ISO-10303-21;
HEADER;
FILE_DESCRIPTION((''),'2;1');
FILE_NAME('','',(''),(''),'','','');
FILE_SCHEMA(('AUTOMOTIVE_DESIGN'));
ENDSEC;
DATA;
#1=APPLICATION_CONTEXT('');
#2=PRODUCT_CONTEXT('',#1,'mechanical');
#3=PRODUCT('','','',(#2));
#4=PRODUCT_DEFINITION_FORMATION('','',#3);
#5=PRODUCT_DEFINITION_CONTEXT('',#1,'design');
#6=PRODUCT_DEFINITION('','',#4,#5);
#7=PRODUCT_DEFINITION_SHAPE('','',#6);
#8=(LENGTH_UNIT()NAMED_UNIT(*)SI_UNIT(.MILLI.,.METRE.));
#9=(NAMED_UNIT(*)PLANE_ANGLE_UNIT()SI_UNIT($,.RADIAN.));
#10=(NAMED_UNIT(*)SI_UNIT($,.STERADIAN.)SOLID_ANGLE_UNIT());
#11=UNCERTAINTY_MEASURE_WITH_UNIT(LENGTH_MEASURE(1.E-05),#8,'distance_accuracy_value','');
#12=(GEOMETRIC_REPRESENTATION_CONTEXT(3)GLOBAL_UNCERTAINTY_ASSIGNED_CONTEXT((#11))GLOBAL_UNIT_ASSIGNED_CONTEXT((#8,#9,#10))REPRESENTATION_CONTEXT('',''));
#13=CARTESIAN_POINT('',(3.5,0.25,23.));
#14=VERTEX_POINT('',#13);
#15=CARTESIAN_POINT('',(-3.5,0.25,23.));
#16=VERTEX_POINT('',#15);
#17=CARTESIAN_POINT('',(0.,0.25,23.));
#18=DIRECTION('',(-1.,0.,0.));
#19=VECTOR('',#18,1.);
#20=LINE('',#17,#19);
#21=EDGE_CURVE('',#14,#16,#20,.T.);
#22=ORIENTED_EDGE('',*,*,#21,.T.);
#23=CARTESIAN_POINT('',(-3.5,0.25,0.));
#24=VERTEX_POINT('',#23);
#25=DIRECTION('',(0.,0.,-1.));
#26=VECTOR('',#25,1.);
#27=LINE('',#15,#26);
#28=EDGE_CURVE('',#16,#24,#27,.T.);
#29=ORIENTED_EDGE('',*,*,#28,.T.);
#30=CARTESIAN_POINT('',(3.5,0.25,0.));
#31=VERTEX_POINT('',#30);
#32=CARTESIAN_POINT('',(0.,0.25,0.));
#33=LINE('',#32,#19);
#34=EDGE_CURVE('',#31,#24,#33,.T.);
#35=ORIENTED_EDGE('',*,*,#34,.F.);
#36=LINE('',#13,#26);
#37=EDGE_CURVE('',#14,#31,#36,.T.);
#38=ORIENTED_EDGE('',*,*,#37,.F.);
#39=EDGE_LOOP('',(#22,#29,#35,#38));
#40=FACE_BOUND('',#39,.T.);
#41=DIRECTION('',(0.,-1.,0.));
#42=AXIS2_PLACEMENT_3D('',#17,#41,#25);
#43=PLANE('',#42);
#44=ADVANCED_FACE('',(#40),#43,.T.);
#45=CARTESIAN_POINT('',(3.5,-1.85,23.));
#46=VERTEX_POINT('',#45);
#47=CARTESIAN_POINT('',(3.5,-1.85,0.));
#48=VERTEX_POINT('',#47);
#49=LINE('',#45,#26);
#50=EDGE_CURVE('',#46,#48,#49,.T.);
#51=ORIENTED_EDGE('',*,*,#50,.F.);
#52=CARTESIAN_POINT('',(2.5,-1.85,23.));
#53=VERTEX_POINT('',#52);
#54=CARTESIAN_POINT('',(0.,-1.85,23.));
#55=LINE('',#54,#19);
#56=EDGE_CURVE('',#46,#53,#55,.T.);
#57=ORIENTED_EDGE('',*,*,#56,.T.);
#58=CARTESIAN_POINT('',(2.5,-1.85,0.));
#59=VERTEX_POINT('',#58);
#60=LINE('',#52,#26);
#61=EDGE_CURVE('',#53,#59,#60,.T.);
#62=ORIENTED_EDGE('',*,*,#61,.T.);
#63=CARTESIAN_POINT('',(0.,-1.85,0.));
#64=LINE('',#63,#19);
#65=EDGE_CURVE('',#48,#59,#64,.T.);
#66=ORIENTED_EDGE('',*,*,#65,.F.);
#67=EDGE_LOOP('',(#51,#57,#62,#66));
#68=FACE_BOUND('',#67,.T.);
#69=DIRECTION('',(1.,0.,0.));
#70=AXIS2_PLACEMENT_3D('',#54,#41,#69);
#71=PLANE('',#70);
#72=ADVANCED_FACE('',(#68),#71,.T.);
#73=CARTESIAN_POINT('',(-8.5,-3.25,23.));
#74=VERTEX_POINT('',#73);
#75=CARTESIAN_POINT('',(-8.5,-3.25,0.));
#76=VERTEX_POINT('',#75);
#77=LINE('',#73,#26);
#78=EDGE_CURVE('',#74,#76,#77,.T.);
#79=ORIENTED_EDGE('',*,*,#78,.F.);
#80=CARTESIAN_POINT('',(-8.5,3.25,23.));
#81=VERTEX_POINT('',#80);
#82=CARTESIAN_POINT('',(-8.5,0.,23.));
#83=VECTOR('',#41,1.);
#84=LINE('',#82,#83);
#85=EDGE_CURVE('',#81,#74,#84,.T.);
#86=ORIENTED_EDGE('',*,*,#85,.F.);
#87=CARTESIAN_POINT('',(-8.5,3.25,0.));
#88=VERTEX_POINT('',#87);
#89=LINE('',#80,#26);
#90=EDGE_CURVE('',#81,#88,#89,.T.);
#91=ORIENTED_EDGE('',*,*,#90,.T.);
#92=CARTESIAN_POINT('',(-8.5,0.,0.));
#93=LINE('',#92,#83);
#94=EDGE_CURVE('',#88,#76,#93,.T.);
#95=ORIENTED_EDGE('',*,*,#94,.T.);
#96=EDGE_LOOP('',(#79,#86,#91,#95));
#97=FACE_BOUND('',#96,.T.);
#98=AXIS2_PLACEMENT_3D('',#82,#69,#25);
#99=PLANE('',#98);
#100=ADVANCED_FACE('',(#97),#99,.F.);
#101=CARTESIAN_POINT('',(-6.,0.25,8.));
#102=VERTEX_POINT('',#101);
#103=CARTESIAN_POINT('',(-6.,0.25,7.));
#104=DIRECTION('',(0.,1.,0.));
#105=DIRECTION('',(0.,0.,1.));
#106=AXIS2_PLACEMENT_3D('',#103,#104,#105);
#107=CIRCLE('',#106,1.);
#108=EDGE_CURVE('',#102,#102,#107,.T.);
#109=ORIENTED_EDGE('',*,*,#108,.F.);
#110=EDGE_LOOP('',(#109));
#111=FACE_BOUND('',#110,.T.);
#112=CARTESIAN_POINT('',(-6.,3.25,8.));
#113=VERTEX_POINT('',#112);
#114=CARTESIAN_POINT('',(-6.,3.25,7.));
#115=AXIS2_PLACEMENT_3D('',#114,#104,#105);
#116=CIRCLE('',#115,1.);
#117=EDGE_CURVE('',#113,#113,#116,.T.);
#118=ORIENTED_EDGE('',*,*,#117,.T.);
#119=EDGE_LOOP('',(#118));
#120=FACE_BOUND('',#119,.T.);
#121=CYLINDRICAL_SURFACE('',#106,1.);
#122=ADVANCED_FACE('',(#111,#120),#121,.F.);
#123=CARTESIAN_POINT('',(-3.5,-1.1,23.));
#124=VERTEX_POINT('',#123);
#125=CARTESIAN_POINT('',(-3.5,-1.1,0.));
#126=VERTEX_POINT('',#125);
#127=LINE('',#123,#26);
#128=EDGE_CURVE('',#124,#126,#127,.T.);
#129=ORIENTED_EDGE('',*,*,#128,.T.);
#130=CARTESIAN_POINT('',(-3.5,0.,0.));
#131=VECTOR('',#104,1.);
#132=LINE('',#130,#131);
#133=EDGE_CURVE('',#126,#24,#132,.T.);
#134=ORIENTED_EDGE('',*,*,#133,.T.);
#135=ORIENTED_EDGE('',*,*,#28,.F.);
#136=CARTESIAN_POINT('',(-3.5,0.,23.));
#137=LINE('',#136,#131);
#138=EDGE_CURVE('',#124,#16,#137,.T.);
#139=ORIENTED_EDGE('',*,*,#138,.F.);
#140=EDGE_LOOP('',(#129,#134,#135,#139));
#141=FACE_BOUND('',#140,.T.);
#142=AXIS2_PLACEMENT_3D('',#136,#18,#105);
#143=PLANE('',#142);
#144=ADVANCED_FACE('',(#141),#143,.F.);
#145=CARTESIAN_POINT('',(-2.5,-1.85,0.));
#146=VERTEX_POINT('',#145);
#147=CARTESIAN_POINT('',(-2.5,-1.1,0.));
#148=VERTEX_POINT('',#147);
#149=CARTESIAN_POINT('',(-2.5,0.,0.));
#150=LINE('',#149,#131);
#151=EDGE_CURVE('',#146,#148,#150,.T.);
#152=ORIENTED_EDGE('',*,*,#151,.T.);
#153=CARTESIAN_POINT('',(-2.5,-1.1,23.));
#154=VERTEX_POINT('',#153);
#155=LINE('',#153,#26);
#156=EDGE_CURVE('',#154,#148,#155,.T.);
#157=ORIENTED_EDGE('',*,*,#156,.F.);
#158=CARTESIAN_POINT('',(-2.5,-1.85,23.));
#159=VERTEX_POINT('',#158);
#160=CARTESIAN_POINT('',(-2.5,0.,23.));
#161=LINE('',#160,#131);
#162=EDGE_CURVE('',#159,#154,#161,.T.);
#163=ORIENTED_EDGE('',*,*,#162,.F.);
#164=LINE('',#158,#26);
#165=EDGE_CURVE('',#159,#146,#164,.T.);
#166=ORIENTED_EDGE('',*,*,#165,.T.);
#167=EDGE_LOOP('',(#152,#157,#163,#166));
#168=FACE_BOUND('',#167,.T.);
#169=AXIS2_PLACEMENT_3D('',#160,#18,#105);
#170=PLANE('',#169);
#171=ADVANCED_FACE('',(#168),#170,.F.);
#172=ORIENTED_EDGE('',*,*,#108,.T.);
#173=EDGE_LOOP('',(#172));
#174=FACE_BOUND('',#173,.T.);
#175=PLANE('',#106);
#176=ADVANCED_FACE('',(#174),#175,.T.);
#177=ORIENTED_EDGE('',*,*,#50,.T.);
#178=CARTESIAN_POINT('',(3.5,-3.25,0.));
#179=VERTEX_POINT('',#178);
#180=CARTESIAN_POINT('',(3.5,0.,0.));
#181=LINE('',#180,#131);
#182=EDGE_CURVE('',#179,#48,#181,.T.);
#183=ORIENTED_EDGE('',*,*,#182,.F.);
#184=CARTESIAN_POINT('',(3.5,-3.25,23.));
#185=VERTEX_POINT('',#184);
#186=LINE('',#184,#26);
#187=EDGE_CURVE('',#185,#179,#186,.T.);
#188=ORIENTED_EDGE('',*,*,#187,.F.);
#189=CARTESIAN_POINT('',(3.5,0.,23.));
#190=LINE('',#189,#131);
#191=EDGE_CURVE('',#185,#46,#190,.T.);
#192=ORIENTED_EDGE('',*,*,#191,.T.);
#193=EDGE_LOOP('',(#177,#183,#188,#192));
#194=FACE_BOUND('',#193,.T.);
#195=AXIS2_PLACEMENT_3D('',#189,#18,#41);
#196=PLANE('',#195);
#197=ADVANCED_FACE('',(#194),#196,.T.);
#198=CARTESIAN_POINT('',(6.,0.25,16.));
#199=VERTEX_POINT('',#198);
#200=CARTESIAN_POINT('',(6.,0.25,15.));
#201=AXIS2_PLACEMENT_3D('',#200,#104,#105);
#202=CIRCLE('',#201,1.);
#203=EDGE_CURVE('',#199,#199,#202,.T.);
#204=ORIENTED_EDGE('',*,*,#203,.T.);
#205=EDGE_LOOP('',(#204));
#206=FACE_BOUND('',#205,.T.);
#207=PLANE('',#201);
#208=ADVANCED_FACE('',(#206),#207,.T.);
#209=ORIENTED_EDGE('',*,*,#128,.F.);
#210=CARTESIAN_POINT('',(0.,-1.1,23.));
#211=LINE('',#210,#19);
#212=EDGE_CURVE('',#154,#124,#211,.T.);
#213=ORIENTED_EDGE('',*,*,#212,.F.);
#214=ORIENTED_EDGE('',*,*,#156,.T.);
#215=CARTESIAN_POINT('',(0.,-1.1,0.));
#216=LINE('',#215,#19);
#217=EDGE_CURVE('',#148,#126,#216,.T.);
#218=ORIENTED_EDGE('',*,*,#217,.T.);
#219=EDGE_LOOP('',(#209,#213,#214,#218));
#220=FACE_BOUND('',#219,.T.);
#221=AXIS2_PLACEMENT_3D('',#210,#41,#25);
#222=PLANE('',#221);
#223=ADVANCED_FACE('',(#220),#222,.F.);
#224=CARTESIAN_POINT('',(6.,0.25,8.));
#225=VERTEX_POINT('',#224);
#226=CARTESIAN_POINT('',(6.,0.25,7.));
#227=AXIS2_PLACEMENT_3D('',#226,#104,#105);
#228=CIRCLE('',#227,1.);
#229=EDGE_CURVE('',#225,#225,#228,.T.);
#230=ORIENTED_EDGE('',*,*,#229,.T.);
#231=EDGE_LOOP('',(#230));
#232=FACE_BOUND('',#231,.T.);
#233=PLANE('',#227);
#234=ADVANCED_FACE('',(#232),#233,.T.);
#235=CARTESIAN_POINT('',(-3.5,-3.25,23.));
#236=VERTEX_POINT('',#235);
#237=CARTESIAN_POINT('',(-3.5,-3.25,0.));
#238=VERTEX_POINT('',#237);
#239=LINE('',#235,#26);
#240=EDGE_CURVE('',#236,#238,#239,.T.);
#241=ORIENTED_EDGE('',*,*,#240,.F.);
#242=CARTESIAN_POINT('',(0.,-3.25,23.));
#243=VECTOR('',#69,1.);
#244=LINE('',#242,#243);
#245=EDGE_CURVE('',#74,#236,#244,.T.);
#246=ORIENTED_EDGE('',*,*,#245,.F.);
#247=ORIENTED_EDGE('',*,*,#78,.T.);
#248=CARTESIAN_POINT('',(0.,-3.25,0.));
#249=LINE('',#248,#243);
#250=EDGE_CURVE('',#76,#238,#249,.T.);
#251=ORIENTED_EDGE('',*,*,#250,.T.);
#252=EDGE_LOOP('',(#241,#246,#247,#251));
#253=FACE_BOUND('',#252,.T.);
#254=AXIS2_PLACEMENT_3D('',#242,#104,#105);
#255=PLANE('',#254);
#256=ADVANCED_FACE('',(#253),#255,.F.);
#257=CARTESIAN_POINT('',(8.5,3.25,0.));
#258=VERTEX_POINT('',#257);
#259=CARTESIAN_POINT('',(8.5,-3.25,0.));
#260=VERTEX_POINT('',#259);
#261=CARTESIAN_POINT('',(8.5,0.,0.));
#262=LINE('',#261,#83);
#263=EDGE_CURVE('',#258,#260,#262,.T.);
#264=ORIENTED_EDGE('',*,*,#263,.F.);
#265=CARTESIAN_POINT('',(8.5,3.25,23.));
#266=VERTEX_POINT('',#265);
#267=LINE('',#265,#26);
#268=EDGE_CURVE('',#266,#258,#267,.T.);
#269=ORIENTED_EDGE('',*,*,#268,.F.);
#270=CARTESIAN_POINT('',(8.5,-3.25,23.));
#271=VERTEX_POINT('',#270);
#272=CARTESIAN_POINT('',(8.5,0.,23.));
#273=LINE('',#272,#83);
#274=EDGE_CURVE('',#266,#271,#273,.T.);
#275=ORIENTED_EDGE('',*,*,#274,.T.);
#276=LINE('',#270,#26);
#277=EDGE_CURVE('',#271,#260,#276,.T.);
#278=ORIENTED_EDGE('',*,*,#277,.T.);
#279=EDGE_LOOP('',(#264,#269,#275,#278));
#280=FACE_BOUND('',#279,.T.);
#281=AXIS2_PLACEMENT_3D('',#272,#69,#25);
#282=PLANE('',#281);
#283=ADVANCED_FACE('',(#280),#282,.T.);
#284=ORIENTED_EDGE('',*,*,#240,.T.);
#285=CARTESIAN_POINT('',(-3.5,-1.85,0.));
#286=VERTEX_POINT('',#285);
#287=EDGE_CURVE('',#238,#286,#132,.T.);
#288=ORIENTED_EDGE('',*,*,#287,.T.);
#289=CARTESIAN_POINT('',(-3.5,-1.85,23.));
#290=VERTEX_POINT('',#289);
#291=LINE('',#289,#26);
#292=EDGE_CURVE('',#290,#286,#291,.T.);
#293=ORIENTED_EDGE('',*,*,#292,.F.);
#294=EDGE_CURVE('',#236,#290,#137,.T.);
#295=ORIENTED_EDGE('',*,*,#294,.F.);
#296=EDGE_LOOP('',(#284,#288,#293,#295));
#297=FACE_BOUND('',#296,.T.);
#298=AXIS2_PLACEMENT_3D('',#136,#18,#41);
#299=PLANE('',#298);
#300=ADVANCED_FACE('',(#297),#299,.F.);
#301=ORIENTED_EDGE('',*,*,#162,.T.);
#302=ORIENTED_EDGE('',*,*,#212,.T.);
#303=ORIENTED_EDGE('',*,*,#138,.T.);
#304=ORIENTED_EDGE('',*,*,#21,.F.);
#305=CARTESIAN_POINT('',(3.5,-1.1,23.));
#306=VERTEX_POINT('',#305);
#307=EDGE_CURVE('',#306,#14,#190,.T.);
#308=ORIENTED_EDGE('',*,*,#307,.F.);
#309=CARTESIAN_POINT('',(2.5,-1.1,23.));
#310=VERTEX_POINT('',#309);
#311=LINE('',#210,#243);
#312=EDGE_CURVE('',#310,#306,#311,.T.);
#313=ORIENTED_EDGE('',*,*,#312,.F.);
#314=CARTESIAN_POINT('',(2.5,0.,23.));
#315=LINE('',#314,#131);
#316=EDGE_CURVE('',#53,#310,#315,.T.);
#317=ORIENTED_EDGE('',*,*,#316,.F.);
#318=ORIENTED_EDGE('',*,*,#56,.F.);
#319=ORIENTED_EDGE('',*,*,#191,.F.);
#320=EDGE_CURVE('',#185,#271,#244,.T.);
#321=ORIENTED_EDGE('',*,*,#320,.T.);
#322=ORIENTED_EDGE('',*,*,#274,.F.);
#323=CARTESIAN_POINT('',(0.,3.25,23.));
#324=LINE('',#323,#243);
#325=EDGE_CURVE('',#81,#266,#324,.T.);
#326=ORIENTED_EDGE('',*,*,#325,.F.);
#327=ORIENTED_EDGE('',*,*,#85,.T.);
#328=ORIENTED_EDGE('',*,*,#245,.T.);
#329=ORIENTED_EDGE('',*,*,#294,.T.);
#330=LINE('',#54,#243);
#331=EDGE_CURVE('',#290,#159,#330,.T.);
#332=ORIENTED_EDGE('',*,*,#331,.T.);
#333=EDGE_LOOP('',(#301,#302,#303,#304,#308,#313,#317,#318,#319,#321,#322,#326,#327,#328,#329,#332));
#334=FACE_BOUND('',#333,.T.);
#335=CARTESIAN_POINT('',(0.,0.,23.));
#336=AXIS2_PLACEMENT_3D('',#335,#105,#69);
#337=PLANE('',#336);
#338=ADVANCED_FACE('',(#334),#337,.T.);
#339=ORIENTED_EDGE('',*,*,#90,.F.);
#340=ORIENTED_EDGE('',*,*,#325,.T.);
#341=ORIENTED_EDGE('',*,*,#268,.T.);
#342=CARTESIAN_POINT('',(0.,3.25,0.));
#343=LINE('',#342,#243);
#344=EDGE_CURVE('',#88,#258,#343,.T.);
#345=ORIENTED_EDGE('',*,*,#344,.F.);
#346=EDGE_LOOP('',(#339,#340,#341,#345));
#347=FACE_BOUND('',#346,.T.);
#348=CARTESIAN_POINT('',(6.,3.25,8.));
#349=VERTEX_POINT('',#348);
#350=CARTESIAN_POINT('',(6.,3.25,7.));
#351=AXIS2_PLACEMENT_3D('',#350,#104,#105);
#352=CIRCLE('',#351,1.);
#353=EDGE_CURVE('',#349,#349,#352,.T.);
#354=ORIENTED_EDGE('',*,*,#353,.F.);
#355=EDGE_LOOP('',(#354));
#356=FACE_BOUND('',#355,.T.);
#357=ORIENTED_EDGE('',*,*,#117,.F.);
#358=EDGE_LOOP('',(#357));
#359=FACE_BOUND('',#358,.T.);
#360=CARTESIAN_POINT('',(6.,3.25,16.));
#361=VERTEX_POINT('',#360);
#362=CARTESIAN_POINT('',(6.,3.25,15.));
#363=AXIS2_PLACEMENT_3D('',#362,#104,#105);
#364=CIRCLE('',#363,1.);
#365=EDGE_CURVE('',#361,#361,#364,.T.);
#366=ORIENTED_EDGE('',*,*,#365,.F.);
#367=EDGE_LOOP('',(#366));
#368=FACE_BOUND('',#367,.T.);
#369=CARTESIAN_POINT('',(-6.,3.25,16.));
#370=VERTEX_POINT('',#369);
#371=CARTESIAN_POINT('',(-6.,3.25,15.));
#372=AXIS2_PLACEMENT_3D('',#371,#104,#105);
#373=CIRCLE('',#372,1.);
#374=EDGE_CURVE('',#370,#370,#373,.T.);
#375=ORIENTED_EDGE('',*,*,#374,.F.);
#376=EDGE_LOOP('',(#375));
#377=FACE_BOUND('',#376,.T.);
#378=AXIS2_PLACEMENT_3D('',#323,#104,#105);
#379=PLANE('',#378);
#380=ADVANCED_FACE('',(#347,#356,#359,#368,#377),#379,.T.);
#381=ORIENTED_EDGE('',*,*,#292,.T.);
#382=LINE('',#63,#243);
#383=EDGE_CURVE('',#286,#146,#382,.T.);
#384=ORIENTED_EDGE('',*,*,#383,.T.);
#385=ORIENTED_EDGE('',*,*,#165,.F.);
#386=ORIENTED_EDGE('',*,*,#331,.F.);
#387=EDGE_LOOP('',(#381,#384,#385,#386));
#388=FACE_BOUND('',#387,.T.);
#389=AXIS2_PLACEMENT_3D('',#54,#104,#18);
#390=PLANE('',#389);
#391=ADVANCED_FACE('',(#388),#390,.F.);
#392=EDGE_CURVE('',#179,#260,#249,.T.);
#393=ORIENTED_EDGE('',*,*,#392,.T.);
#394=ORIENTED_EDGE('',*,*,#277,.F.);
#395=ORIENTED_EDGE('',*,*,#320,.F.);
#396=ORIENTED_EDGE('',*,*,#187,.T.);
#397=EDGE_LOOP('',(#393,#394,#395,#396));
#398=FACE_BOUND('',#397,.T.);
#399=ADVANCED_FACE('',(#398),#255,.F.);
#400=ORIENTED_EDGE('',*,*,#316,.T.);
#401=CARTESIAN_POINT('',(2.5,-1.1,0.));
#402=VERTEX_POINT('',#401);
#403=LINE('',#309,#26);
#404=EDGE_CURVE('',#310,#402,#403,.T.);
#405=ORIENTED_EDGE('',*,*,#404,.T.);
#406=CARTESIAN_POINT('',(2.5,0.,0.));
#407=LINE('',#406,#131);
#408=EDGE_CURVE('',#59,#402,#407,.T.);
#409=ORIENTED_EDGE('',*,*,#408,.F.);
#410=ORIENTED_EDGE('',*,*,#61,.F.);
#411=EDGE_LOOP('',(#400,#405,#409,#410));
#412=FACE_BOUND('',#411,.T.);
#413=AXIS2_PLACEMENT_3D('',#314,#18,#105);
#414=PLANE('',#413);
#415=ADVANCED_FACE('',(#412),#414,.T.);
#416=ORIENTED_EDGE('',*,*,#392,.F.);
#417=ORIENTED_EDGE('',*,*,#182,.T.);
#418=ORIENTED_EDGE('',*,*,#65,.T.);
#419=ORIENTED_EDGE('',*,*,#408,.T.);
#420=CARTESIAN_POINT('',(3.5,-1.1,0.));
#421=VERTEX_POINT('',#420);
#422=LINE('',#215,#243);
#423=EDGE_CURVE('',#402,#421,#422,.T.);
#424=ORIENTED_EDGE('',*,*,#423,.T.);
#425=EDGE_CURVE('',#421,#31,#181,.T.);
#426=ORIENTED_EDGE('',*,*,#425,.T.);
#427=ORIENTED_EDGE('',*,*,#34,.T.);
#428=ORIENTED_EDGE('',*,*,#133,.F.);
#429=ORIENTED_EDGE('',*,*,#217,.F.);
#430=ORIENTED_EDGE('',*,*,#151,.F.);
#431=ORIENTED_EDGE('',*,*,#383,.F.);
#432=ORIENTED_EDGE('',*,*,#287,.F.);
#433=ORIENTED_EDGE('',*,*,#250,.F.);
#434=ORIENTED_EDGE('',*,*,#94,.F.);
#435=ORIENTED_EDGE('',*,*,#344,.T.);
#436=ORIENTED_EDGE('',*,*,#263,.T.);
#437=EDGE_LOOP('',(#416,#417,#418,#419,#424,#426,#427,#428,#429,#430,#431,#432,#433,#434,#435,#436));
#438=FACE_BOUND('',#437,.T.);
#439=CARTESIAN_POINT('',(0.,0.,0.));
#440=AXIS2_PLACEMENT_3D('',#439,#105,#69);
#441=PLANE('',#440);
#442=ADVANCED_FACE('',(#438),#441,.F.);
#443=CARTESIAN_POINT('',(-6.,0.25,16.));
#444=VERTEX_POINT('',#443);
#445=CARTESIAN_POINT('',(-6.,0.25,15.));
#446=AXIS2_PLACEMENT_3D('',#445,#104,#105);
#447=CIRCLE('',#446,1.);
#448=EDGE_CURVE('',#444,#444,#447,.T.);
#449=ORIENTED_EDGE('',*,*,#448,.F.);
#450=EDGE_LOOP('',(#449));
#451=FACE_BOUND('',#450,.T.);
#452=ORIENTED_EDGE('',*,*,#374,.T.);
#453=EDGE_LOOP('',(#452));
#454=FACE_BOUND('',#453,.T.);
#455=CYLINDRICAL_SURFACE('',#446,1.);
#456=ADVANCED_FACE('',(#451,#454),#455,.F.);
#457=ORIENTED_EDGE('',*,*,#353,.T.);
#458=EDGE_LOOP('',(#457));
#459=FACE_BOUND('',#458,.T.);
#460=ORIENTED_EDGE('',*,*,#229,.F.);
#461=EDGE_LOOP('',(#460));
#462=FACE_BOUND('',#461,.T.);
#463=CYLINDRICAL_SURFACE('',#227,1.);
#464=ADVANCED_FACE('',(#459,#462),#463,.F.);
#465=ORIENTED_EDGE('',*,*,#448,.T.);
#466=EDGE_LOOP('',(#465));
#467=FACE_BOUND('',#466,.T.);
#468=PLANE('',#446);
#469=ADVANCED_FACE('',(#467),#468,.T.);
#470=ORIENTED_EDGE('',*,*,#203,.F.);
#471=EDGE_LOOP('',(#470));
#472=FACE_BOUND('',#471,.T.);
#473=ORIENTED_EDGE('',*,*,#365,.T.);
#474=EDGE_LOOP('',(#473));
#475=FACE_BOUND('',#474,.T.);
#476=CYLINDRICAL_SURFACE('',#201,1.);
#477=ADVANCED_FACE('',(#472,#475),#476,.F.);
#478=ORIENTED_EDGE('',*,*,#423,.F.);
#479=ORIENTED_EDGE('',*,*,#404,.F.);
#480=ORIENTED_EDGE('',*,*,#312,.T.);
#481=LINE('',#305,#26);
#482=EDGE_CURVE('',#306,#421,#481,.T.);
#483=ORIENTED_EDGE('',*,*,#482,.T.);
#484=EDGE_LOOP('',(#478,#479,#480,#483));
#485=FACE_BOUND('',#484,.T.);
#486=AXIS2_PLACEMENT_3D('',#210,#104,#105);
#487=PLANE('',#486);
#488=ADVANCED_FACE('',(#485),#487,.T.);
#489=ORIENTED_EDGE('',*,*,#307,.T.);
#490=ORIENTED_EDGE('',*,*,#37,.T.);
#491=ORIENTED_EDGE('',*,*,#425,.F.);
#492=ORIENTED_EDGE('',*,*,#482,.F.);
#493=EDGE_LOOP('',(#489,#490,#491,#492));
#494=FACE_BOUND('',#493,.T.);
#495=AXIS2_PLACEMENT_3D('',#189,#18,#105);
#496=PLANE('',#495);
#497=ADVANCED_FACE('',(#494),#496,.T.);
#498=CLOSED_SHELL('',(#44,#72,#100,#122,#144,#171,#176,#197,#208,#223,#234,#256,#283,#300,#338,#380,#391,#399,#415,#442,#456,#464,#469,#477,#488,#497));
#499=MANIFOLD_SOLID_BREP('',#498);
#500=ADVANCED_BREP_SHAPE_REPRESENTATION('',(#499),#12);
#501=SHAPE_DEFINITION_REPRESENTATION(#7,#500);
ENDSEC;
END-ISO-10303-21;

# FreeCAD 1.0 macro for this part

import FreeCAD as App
import Part
import Sketcher
from FreeCAD import Vector
Q = App.Units.Quantity


def add_polygon(sketch, points):
    """Adds a closed chain of lines whose ends are joined by coincident constraints."""
    first, n = sketch.GeometryCount, len(points)
    for a, b in zip(points, points[1:] + points[:1]):
        sketch.addGeometry(Part.LineSegment(App.Vector(*a, 0), App.Vector(*b, 0)), False)
    for i in range(n):
        sketch.addConstraint(Sketcher.Constraint("Coincident", first + i, 2, first + (i + 1) % n, 1))

doc = App.newDocument("Part")
body = doc.addObject("PartDesign::Body", "Body")

# Sketch on XY plane
sketch1 = doc.addObject("Sketcher::SketchObject", "Sketch")
body.addObject(sketch1)
sketch1.AttachmentSupport = (doc.XY_Plane, [""])
sketch1.MapMode = "FlatFace"
add_polygon(sketch1, [(3.5, -1.9), (3.5, -3.2), (8.5, -3.2), (8.5, 3.2), (-8.5, 3.2), (-8.5, -3.2), (-3.5, -3.2), (-3.5, -1.9), (-2.5, -1.9), (-2.5, -1.1), (-3.5, -1.1), (-3.5, 0.2), (3.5, 0.2), (3.5, -1.1), (2.5, -1.1), (2.5, -1.9)])  # lines 0-15
sketch1.addConstraint([
    Sketcher.Constraint("Vertical", 0),
    Sketcher.Constraint("Horizontal", 1),
    Sketcher.Constraint("Vertical", 2),
    Sketcher.Constraint("Horizontal", 3),
    Sketcher.Constraint("Vertical", 4),
    Sketcher.Constraint("Horizontal", 5),
    Sketcher.Constraint("Vertical", 6),
    Sketcher.Constraint("Horizontal", 7),
    Sketcher.Constraint("Vertical", 8),
    Sketcher.Constraint("Horizontal", 9),
    Sketcher.Constraint("Vertical", 10),
    Sketcher.Constraint("Horizontal", 11),
    Sketcher.Constraint("Vertical", 12),
    Sketcher.Constraint("Horizontal", 13),
    Sketcher.Constraint("Vertical", 14),
    Sketcher.Constraint("Horizontal", 15),
    Sketcher.Constraint("Symmetric", 1, 2, 3, 2, -1, 1),
    Sketcher.Constraint("Symmetric", 0, 2, 5, 2, -2),
    Sketcher.Constraint("Symmetric", 9, 2, 12, 2, -2),
    Sketcher.Constraint("Symmetric", 7, 2, 14, 2, -2),
    Sketcher.Constraint("Vertical", 6, 2, 9, 2),
    Sketcher.Constraint("DistanceX", 1, 1, 1, 2, Q("5 mm")),
    Sketcher.Constraint("DistanceX", 3, 2, 3, 1, Q("17 mm")),
    Sketcher.Constraint("DistanceX", 7, 1, 7, 2, Q("1 mm")),
    Sketcher.Constraint("DistanceY", 0, 2, 0, 1, Q("1.4 mm")),
    Sketcher.Constraint("DistanceY", 2, 1, 2, 2, Q("6.5 mm")),
    Sketcher.Constraint("DistanceY", 11, 2, 2, 2, Q("3 mm")),
    Sketcher.Constraint("DistanceY", 8, 1, 8, 2, Q("0.75 mm")),
])
pad1 = doc.addObject("PartDesign::Pad", "Pad")
body.addObject(pad1)
pad1.Profile = sketch1
pad1.Length = 23

# Sketch on XZ plane
sketch2 = doc.addObject("Sketcher::SketchObject", "Sketch001")
body.addObject(sketch2)
sketch2.AttachmentSupport = (doc.XZ_Plane, [""])
sketch2.MapMode = "FlatFace"
sketch2.AttachmentOffset = App.Placement(Vector(0, 0, -3.25), App.Rotation())
sketch2.addGeometry([
    Part.Circle(Vector(-6, 7, 0), Vector(0, 0, 1), 1),
    Part.Circle(Vector(6, 7, 0), Vector(0, 0, 1), 1),
    Part.Circle(Vector(-6, 15, 0), Vector(0, 0, 1), 1),
    Part.Circle(Vector(6, 15, 0), Vector(0, 0, 1), 1),
], False)
sketch2.addConstraint([
    Sketcher.Constraint("Equal", 0, 1),
    Sketcher.Constraint("Equal", 1, 2),
    Sketcher.Constraint("Equal", 2, 3),
    Sketcher.Constraint("Symmetric", 0, 3, 1, 3, -2),
    Sketcher.Constraint("Symmetric", 2, 3, 3, 3, -2),
    Sketcher.Constraint("Vertical", 0, 3, 2, 3),
    Sketcher.Constraint("Diameter", 0, Q("2 mm")),
    Sketcher.Constraint("DistanceX", 0, 3, -1, 1, Q("6 mm")),
    Sketcher.Constraint("DistanceY", -1, 1, 0, 3, Q("7 mm")),
    Sketcher.Constraint("DistanceY", -1, 1, 2, 3, Q("15 mm")),
])
pocket1 = doc.addObject("PartDesign::Pocket", "Pocket")
body.addObject(pocket1)
pocket1.Profile = sketch2
pocket1.Length = 3
pocket1.Reversed = True

doc.recompute()
